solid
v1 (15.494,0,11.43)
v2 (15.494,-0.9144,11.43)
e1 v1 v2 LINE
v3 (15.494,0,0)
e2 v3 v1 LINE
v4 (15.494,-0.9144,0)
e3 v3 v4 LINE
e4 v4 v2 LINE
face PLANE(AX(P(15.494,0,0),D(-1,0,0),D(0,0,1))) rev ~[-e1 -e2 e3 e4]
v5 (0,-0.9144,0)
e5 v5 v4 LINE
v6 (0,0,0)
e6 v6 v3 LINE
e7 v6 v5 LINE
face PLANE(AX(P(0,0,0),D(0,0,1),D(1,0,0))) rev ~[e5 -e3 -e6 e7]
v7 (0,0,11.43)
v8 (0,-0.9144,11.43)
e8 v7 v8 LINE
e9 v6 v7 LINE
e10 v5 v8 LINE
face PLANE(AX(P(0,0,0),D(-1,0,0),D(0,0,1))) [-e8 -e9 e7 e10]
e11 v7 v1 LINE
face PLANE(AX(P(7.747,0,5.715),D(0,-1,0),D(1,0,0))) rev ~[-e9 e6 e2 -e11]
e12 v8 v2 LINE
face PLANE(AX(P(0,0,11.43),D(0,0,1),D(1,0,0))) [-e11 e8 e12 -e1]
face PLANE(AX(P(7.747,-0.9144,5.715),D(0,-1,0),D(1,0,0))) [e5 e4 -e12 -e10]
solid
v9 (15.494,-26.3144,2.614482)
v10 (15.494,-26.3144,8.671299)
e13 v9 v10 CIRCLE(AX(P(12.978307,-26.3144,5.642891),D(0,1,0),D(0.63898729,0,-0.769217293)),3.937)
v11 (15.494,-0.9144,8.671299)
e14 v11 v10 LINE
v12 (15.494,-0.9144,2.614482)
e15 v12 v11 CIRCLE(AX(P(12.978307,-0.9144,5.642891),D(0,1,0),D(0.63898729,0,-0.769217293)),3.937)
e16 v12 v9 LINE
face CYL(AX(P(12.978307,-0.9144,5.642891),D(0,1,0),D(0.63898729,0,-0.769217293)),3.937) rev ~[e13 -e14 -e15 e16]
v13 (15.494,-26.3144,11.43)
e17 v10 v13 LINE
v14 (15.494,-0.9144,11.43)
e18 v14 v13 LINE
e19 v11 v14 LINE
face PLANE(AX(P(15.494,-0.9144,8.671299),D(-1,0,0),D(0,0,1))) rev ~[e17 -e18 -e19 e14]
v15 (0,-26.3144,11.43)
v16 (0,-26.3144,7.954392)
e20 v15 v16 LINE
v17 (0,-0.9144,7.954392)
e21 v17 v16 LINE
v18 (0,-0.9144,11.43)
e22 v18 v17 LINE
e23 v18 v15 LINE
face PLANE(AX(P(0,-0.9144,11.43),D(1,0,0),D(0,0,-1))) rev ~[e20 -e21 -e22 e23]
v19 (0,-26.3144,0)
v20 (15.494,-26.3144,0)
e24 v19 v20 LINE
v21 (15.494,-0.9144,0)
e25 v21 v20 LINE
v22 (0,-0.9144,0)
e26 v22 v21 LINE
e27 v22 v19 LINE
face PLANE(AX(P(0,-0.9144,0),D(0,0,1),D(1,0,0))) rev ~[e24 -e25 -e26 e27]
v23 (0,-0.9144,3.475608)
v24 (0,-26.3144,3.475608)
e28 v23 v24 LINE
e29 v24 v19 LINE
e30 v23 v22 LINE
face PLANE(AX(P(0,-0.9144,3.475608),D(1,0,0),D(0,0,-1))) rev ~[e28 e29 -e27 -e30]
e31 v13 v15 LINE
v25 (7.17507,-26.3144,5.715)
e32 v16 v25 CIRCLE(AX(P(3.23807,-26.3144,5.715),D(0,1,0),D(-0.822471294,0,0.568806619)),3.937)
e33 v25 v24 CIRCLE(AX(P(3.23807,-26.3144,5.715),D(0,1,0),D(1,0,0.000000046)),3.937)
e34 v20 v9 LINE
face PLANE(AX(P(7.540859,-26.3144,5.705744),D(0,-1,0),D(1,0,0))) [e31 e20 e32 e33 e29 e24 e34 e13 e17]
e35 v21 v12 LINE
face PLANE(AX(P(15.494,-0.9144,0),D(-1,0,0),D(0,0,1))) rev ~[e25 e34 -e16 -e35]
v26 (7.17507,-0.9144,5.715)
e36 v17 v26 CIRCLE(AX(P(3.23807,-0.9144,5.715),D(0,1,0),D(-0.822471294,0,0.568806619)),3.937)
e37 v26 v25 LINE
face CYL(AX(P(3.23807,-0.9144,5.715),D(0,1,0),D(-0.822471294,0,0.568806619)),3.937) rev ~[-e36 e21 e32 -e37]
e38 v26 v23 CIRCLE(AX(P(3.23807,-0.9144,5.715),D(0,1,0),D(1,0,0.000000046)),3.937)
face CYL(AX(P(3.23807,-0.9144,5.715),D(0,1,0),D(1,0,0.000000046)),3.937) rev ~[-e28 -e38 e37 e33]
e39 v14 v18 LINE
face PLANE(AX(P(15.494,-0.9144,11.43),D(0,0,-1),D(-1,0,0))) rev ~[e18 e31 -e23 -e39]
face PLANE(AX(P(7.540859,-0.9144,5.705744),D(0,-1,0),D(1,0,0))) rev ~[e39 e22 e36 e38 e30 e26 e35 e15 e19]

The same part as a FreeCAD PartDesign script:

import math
import FreeCAD as App
import Part
import Sketcher

V = App.Vector
Q = App.Units.Quantity


def add_polygon(sketch, points):
    """Adds a closed chain of lines whose ends are joined by coincident constraints."""
    first, n = sketch.GeometryCount, len(points)
    for a, b in zip(points, points[1:] + points[:1]):
        sketch.addGeometry(Part.LineSegment(App.Vector(*a, 0), App.Vector(*b, 0)), False)
    for i in range(n):
        sketch.addConstraint(Sketcher.Constraint("Coincident", first + i, 2, first + (i + 1) % n, 1))

doc = App.newDocument("Part")
body = doc.addObject("PartDesign::Body", "Body")

# Sketch on XZ plane
sketch1 = doc.addObject("Sketcher::SketchObject", "Sketch")
body.addObject(sketch1)
sketch1.AttachmentSupport = (doc.XZ_Plane, [""])
sketch1.MapMode = "FlatFace"
add_polygon(sketch1, [(0, 11), (0, 0), (15, 0), (15, 11)])  # lines 0-3
sketch1.addConstraint(Sketcher.Constraint("Vertical", 0))
sketch1.addConstraint(Sketcher.Constraint("Horizontal", 1))
sketch1.addConstraint(Sketcher.Constraint("Vertical", 2))
sketch1.addConstraint(Sketcher.Constraint("Horizontal", 3))
sketch1.addConstraint(Sketcher.Constraint("Coincident", 0, 2, -1, 1))
sketch1.addConstraint(Sketcher.Constraint("DistanceX", 1, 1, 1, 2, Q("0.61 in")))
sketch1.addConstraint(Sketcher.Constraint("DistanceY", 0, 2, 0, 1, Q("0.45 in")))
pad1 = doc.addObject("PartDesign::Pad", "Pad")
body.addObject(pad1)
pad1.Profile = sketch1
pad1.Length = Q("0.036 in")
body2 = doc.addObject("PartDesign::Body", "Body001")

# Sketch on XZ plane
sketch2 = doc.addObject("Sketcher::SketchObject", "Sketch001")
body2.addObject(sketch2)
sketch2.AttachmentSupport = (doc.getObject("XZ_Plane001"), [""])
sketch2.MapMode = "FlatFace"
sketch2.AttachmentOffset = App.Placement(V(0, 0, 0.036 * 25.4), App.Rotation())
sketch2.addGeometry(Part.ArcOfCircle(Part.Circle(V(13, 5.6, 0), V(0, 0, 1), 3.9), math.radians(50), math.radians(310)), False)
sketch2.addGeometry(Part.LineSegment(V(15.5, 8.7, 0), V(15.5, 11.4, 0)), False)
sketch2.addGeometry(Part.LineSegment(V(15.5, 11.4, 0), V(0, 11.4, 0)), False)
sketch2.addGeometry(Part.LineSegment(V(0, 11.4, 0), V(0, 8, 0)), False)
sketch2.addGeometry(Part.ArcOfCircle(Part.Circle(V(3.2, 5.7, 0), V(0, 0, 1), 3.9), math.radians(0), math.radians(145)), False)
sketch2.addGeometry(Part.ArcOfCircle(Part.Circle(V(3.2, 5.7, 0), V(0, 0, 1), 3.9), math.radians(-145), math.radians(0)), False)
sketch2.addGeometry(Part.LineSegment(V(0, 3.5, 0), V(0, 0, 0)), False)
sketch2.addGeometry(Part.LineSegment(V(0, 0, 0), V(15.5, 0, 0)), False)
sketch2.addGeometry(Part.LineSegment(V(15.5, 0, 0), V(15.5, 2.6, 0)), False)
sketch2.addConstraint(Sketcher.Constraint("Coincident", 0, 1, 1, 1))
sketch2.addConstraint(Sketcher.Constraint("Coincident", 1, 2, 2, 1))
sketch2.addConstraint(Sketcher.Constraint("Coincident", 2, 2, 3, 1))
sketch2.addConstraint(Sketcher.Constraint("Coincident", 3, 2, 4, 2))
sketch2.addConstraint(Sketcher.Constraint("Tangent", 4, 1, 5, 2))
sketch2.addConstraint(Sketcher.Constraint("Coincident", 5, 1, 6, 1))
sketch2.addConstraint(Sketcher.Constraint("Coincident", 6, 2, 7, 1))
sketch2.addConstraint(Sketcher.Constraint("Coincident", 7, 2, 8, 1))
sketch2.addConstraint(Sketcher.Constraint("Coincident", 8, 2, 0, 2))
sketch2.addConstraint(Sketcher.Constraint("Vertical", 1))
sketch2.addConstraint(Sketcher.Constraint("Horizontal", 2))
sketch2.addConstraint(Sketcher.Constraint("Vertical", 3))
sketch2.addConstraint(Sketcher.Constraint("Vertical", 6))
sketch2.addConstraint(Sketcher.Constraint("Horizontal", 7))
sketch2.addConstraint(Sketcher.Constraint("Vertical", 8))
sketch2.addConstraint(Sketcher.Constraint("Coincident", 6, 2, -1, 1))
sketch2.addConstraint(Sketcher.Constraint("Equal", 0, 4))
sketch2.addConstraint(Sketcher.Constraint("Equal", 4, 5))
sketch2.addConstraint(Sketcher.Constraint("PointOnObject", 2, 2, -2))
sketch2.addConstraint(Sketcher.Constraint("Horizontal", 5, 3, 4, 1))
sketch2.addConstraint(Sketcher.Constraint("Vertical", 1, 2, 7, 2))
sketch2.addConstraint(Sketcher.Constraint("Equal", 3, 6))
sketch2.addConstraint(Sketcher.Constraint("Radius", 0, Q("0.155 in")))
sketch2.addConstraint(Sketcher.Constraint("DistanceX", 2, 2, 2, 1, Q("0.61 in")))
sketch2.addConstraint(Sketcher.Constraint("DistanceY", -1, 1, 1, 2, Q("0.45 in")))
sketch2.addConstraint(Sketcher.Constraint("DistanceY", 1, 1, 1, 2, Q("2.758701 mm")))
sketch2.addConstraint(Sketcher.Constraint("DistanceY", 0, 3, 3, 2, Q("2.311502 mm")))
sketch2.addConstraint(Sketcher.Constraint("DistanceY", 3, 2, 3, 1, Q("3.475608 mm")))
pad2 = doc.addObject("PartDesign::Pad", "Pad001")
body2.addObject(pad2)
pad2.Profile = sketch2
pad2.Length = Q("1 in")

doc.recompute()
